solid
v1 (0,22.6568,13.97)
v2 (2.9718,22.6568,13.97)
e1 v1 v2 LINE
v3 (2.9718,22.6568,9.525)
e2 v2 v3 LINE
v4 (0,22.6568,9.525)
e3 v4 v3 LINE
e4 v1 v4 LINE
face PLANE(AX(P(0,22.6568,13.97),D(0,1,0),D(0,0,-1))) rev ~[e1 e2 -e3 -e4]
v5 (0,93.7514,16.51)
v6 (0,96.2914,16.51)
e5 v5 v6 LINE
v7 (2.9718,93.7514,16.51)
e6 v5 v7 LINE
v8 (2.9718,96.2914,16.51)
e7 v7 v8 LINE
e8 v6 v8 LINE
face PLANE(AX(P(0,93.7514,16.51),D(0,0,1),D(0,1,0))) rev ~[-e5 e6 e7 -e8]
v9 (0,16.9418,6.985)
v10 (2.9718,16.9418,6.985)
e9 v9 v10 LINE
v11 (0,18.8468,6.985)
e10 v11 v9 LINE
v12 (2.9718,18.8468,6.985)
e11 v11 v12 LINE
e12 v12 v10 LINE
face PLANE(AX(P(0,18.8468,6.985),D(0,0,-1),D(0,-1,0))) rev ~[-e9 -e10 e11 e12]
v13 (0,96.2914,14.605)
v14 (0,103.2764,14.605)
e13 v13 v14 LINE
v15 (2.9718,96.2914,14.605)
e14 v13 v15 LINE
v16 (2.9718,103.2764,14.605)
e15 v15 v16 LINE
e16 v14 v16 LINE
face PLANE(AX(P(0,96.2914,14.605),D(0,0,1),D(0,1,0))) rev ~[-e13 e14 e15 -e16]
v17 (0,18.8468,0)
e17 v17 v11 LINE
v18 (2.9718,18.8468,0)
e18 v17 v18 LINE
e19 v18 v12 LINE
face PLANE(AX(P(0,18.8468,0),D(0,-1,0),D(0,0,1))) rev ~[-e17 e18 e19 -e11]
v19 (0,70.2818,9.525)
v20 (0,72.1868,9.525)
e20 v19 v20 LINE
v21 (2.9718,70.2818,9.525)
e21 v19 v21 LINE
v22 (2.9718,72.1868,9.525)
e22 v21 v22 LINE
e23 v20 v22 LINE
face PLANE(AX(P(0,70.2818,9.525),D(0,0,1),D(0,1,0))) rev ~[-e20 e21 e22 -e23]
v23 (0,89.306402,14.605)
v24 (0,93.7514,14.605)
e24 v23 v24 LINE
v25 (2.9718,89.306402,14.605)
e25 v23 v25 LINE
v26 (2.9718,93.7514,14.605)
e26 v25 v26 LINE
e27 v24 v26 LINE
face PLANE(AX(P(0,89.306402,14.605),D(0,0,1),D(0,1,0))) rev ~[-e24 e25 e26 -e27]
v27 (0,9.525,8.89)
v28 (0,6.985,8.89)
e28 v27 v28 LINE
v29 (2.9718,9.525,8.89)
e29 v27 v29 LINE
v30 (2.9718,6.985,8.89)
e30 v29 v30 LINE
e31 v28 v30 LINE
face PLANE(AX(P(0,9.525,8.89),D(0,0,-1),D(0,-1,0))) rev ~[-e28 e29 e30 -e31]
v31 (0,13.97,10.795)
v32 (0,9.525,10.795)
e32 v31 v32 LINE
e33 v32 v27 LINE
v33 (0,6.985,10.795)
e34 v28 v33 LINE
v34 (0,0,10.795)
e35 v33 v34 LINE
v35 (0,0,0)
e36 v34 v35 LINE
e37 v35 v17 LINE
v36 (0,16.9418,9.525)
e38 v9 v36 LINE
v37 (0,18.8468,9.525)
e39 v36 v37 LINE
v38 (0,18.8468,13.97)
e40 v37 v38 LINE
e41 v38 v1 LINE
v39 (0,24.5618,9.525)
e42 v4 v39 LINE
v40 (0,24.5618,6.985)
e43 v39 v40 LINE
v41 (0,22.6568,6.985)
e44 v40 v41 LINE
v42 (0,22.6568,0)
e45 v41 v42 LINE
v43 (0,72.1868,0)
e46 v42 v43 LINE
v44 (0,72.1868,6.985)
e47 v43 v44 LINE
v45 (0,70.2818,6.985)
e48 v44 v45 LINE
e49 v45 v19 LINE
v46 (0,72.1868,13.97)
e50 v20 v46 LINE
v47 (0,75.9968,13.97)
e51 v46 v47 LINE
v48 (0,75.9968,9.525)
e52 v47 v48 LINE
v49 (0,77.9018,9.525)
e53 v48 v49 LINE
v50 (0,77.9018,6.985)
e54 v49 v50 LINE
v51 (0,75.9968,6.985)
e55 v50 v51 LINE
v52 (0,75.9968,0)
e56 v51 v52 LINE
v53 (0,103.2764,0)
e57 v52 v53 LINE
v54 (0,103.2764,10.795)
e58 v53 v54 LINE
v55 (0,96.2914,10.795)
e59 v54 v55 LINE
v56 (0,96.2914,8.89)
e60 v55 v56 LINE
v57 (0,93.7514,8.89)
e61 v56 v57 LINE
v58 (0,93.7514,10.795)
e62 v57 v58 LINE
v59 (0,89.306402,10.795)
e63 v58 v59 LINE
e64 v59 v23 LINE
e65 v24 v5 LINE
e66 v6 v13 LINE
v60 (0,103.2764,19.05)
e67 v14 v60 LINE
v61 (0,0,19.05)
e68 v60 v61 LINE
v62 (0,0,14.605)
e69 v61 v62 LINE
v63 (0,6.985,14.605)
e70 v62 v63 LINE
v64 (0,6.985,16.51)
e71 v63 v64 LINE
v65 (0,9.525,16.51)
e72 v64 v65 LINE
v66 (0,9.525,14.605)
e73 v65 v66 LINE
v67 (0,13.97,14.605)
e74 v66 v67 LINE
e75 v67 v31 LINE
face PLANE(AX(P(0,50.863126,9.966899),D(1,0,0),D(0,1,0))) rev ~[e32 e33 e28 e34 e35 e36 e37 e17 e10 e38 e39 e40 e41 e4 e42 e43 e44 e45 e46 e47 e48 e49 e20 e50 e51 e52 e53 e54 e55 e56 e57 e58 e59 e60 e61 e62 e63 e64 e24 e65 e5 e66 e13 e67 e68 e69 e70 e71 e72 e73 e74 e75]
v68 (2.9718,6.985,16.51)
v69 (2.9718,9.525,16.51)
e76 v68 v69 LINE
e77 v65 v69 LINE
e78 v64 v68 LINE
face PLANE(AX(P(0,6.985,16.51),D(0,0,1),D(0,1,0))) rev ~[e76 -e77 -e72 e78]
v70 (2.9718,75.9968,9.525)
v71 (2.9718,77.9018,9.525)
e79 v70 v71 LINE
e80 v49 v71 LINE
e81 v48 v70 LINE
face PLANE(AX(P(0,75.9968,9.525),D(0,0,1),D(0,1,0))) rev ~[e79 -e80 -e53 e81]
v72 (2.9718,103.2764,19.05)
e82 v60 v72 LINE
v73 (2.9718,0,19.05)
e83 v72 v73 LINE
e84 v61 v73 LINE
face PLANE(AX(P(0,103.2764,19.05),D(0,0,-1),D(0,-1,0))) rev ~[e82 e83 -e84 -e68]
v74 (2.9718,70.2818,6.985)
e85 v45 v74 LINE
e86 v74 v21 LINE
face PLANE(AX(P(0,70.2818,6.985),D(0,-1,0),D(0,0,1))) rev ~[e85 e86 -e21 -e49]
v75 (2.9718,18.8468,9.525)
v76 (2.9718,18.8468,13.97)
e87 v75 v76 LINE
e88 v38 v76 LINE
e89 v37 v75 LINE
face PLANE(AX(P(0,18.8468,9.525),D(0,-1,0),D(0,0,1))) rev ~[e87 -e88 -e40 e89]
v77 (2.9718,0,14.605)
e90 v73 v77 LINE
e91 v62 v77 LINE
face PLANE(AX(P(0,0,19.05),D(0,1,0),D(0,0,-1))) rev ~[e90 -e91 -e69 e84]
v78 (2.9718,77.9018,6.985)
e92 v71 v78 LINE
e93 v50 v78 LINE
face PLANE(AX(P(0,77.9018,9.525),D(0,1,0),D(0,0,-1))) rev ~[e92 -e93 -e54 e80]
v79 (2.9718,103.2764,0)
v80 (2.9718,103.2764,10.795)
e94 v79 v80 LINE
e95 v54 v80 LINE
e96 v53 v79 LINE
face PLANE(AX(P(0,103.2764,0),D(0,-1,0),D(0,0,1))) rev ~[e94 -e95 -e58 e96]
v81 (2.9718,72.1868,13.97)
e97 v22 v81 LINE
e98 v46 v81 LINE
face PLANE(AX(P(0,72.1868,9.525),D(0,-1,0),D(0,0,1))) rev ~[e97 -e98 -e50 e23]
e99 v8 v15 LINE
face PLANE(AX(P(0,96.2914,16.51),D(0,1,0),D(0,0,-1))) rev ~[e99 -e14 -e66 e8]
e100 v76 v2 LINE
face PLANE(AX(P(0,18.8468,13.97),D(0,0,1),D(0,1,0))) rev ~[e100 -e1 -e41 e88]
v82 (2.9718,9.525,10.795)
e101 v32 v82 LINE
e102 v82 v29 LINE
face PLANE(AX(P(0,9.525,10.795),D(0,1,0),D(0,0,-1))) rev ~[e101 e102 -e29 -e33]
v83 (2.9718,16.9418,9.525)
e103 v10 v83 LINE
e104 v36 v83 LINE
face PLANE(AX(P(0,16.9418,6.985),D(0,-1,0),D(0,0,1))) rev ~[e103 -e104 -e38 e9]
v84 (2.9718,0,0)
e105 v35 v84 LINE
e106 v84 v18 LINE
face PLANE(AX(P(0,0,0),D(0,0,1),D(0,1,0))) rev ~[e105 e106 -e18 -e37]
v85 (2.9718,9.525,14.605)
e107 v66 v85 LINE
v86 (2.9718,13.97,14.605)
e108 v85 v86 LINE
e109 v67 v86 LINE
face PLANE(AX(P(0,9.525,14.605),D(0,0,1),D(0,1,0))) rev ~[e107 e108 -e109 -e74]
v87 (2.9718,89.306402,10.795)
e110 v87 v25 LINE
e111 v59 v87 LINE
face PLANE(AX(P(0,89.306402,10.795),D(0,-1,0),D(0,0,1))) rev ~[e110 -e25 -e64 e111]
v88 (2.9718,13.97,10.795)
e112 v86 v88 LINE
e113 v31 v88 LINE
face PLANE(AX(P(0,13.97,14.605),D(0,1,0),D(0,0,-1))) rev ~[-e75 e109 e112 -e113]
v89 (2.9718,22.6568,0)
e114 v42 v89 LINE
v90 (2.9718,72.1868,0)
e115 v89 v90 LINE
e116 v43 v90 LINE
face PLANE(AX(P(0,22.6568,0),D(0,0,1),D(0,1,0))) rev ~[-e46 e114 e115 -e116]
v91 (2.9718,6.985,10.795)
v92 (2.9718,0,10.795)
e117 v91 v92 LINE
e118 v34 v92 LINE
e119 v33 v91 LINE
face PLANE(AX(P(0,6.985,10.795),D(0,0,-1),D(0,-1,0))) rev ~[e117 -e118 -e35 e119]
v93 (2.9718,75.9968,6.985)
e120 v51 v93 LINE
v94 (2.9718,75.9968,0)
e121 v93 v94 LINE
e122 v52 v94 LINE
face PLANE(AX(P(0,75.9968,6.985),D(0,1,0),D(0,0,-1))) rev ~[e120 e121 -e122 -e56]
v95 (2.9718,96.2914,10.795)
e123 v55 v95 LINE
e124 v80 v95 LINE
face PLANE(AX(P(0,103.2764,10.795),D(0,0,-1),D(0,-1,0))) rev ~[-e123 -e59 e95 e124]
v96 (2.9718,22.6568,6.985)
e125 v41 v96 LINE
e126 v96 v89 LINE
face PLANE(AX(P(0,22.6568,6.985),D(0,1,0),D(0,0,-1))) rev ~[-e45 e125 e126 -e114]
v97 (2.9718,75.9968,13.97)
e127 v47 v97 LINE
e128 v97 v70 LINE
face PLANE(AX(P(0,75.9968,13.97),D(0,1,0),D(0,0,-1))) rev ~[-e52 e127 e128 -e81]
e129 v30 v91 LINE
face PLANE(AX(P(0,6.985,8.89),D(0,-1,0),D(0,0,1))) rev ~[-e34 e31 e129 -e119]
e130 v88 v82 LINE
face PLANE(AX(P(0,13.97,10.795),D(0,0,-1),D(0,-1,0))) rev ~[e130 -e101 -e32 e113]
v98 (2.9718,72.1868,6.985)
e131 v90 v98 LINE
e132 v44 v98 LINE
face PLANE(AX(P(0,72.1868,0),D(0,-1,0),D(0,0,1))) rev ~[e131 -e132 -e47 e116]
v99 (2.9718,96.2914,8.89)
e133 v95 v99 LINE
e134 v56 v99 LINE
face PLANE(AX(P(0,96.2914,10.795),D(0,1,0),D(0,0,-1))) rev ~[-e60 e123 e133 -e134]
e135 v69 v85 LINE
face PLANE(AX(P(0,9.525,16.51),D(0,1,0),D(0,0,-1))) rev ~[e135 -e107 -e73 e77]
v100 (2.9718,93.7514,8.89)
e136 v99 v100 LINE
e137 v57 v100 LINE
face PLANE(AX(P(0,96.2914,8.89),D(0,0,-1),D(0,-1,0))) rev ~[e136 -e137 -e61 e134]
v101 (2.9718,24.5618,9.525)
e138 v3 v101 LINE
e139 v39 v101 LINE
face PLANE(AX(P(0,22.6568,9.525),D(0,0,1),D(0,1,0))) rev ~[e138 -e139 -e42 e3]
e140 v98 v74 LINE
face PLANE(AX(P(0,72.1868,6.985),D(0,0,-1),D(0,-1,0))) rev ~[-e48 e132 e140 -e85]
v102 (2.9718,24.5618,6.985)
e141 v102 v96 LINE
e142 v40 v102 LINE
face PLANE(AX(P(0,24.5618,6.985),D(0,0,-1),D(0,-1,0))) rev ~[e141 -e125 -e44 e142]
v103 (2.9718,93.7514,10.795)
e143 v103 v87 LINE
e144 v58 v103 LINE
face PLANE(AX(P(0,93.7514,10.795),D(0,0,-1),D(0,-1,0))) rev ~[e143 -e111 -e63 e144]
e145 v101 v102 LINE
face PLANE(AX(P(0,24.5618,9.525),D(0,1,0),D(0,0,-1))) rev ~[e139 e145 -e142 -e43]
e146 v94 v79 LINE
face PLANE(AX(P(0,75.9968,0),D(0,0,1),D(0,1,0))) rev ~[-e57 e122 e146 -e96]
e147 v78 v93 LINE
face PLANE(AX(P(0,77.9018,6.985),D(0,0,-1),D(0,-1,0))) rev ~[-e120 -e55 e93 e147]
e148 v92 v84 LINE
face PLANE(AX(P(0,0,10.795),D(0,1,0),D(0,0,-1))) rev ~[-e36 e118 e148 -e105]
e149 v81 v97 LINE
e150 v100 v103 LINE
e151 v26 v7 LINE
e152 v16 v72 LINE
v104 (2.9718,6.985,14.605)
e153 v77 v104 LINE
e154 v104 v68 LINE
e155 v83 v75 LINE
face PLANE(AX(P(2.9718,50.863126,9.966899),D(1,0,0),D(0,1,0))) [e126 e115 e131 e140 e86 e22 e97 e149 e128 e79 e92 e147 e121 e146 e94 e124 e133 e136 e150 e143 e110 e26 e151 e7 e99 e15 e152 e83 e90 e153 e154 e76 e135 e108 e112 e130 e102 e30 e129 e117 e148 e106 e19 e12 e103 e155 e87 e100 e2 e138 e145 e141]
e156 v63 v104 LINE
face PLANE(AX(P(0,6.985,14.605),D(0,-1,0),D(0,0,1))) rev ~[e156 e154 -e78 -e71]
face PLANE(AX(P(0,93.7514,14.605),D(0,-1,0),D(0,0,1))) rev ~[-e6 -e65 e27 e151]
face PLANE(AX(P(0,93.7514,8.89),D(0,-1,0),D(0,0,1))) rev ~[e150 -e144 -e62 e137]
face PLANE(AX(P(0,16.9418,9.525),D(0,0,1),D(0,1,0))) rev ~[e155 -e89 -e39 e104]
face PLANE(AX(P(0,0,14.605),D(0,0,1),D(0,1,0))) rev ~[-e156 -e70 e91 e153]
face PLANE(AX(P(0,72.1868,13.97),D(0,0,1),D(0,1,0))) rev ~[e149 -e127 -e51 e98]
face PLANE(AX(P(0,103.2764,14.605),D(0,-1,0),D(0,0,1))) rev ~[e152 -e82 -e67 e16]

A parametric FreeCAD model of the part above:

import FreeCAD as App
import Part
import Sketcher
from FreeCAD import Vector
Q = App.Units.Quantity


def add_polygon(sketch, points):
    """Adds a closed chain of lines whose ends are joined by coincident constraints."""
    first, n = sketch.GeometryCount, len(points)
    for a, b in zip(points, points[1:] + points[:1]):
        sketch.addGeometry(Part.LineSegment(App.Vector(*a, 0), App.Vector(*b, 0)), False)
    for i in range(n):
        sketch.addConstraint(Sketcher.Constraint("Coincident", first + i, 2, first + (i + 1) % n, 1))

doc = App.newDocument("Part")
params = doc.addObject("Spreadsheet::Sheet", "Params")
for row, (alias, value) in enumerate([
    ("sketch1_width", "0.1 in"),
    ("sketch1_width2", "0.15 in"),
    ("sketch1_width3", "1.95 in"),
    ("sketch1_width4", "0.742 in"),
    ("sketch1_width5", "1.074 in"),
    ("pad1_length", "0.117 in"),
], start=1):
    params.set(f"A{row}", alias)
    params.set(f"B{row}", "=" + value)
    params.setAlias(f"B{row}", alias)

body = doc.addObject("PartDesign::Body", "Body")

sketch1 = doc.addObject("Sketcher::SketchObject", "Sketch")
body.addObject(sketch1)
sketch1.AttachmentSupport = (doc.YZ_Plane, [""])
sketch1.MapMode = "FlatFace"
add_polygon(sketch1, [(0, 10.8), (0, 0), (18.8, 0), (18.8, 7), (16.9, 7), (16.9, 9.5), (18.8, 9.5), (18.8, 14), (22.7, 14), (22.7, 9.5), (24.6, 9.5), (24.6, 7), (22.7, 7), (22.7, 0), (72.2, 0), (72.2, 7), (70.3, 7), (70.3, 9.5), (72.2, 9.5), (72.2, 14), (76, 14), (76, 9.5), (77.9, 9.5), (77.9, 7), (76, 7), (76, 0), (103.3, 0), (103.3, 10.8), (96.3, 10.8), (96.3, 8.9), (93.8, 8.9), (93.8, 10.8), (89.3, 10.8), (89.3, 14.6), (93.8, 14.6), (93.8, 16.5), (96.3, 16.5), (96.3, 14.6), (103.3, 14.6), (103.3, 19.1), (0, 19.1), (0, 14.6), (7, 14.6), (7, 16.5), (9.5, 16.5), (9.5, 14.6), (14, 14.6), (14, 10.8), (9.5, 10.8), (9.5, 8.9), (7, 8.9), (7, 10.8)])
sketch1.addConstraint([
    Sketcher.Constraint("Vertical", 0),
    Sketcher.Constraint("Horizontal", 1),
    Sketcher.Constraint("Vertical", 2),
    Sketcher.Constraint("Horizontal", 3),
    Sketcher.Constraint("Vertical", 4),
    Sketcher.Constraint("Horizontal", 5),
    Sketcher.Constraint("Vertical", 6),
    Sketcher.Constraint("Horizontal", 7),
    Sketcher.Constraint("Vertical", 8),
    Sketcher.Constraint("Horizontal", 9),
    Sketcher.Constraint("Vertical", 10),
    Sketcher.Constraint("Horizontal", 11),
    Sketcher.Constraint("Vertical", 12),
    Sketcher.Constraint("Horizontal", 13),
    Sketcher.Constraint("Vertical", 14),
    Sketcher.Constraint("Horizontal", 15),
    Sketcher.Constraint("Vertical", 16),
    Sketcher.Constraint("Horizontal", 17),
    Sketcher.Constraint("Vertical", 18),
    Sketcher.Constraint("Horizontal", 19),
    Sketcher.Constraint("Vertical", 20),
    Sketcher.Constraint("Horizontal", 21),
    Sketcher.Constraint("Vertical", 22),
    Sketcher.Constraint("Horizontal", 23),
    Sketcher.Constraint("Vertical", 24),
    Sketcher.Constraint("Horizontal", 25),
    Sketcher.Constraint("Vertical", 26),
    Sketcher.Constraint("Horizontal", 27),
    Sketcher.Constraint("Vertical", 28),
    Sketcher.Constraint("Horizontal", 29),
    Sketcher.Constraint("Vertical", 30),
    Sketcher.Constraint("Horizontal", 31),
    Sketcher.Constraint("Vertical", 32),
    Sketcher.Constraint("Horizontal", 33),
    Sketcher.Constraint("Vertical", 34),
    Sketcher.Constraint("Horizontal", 35),
    Sketcher.Constraint("Vertical", 36),
    Sketcher.Constraint("Horizontal", 37),
    Sketcher.Constraint("Vertical", 38),
    Sketcher.Constraint("Horizontal", 39),
    Sketcher.Constraint("Vertical", 40),
    Sketcher.Constraint("Horizontal", 41),
    Sketcher.Constraint("Vertical", 42),
    Sketcher.Constraint("Horizontal", 43),
    Sketcher.Constraint("Vertical", 44),
    Sketcher.Constraint("Horizontal", 45),
    Sketcher.Constraint("Vertical", 46),
    Sketcher.Constraint("Horizontal", 47),
    Sketcher.Constraint("Vertical", 48),
    Sketcher.Constraint("Horizontal", 49),
    Sketcher.Constraint("Vertical", 50),
    Sketcher.Constraint("Horizontal", 51),
    Sketcher.Constraint("Coincident", 0, 2, -1, 1),
    Sketcher.Constraint("PointOnObject", 12, 2, -1),
    Sketcher.Constraint("PointOnObject", 24, 2, -1),
    Sketcher.Constraint("PointOnObject", 39, 2, -2),
    Sketcher.Constraint("Horizontal", 5, 2, 8, 2),
    Sketcher.Constraint("Horizontal", 3, 2, 10, 2),
    Sketcher.Constraint("Horizontal", 11, 2, 14, 2),
    Sketcher.Constraint("Horizontal", 9, 2, 16, 2),
    Sketcher.Constraint("Horizontal", 7, 2, 18, 2),
    Sketcher.Constraint("Horizontal", 17, 2, 20, 2),
    Sketcher.Constraint("Horizontal", 15, 2, 22, 2),
    Sketcher.Constraint("Horizontal", 27, 2, 30, 2),
    Sketcher.Constraint("Horizontal", 33, 2, 36, 2),
    Sketcher.Constraint("Horizontal", 37, 2, 40, 2),
    Sketcher.Constraint("Horizontal", 35, 2, 42, 2),
    Sketcher.Constraint("Horizontal", 41, 2, 44, 2),
    Sketcher.Constraint("Horizontal", 31, 2, 46, 2),
    Sketcher.Constraint("Horizontal", 29, 2, 48, 2),
    Sketcher.Constraint("Horizontal", 47, 2, 50, 2),
    Sketcher.Constraint("Vertical", 2, 2, 5, 2),
    Sketcher.Constraint("Vertical", 8, 2, 11, 2),
    Sketcher.Constraint("Vertical", 14, 2, 17, 2),
    Sketcher.Constraint("Vertical", 20, 2, 23, 2),
    Sketcher.Constraint("Vertical", 30, 2, 33, 2),
    Sketcher.Constraint("Vertical", 28, 2, 35, 2),
    Sketcher.Constraint("Vertical", 26, 2, 37, 2),
    Sketcher.Constraint("Vertical", 44, 2, 47, 2),
    Sketcher.Constraint("Vertical", 42, 2, 49, 2),
    Sketcher.Constraint("Equal", 5, 9),
    Sketcher.Constraint("Equal", 11, 15),
    Sketcher.Constraint("Equal", 7, 19),
    Sketcher.Constraint("Equal", 17, 21),
    Sketcher.Constraint("Equal", 37, 41),
    Sketcher.Constraint("Equal", 35, 43),
    Sketcher.Constraint("Equal", 51, 2),
    Sketcher.Constraint("Equal", 49, 4),
    Sketcher.Constraint("Equal", 47, 6),
    Sketcher.Constraint("Equal", 23, 28),
    Sketcher.Constraint("Equal", 19, 32),
    Sketcher.Constraint("Equal", 30, 34),
    Sketcher.Constraint("Equal", 20, 38),
    Sketcher.Constraint("DistanceX", 29, 2, 29, 1, Q("0.1 in")),
    Sketcher.Constraint("DistanceX", 7, 1, 7, 2, Q("0.15 in")),
    Sketcher.Constraint("DistanceX", 13, 1, 13, 2, Q("1.95 in")),
    Sketcher.Constraint("DistanceX", 10, 2, 15, 2, Q("1.8 in")),
    Sketcher.Constraint("DistanceY", 35, 2, 38, 2, Q("0.1 in")),
    Sketcher.Constraint("DistanceY", 6, 2, 39, 2, Q("0.2 in")),
    Sketcher.Constraint("DistanceX", 1, 1, 1, 2, Q("0.742 in")),
    Sketcher.Constraint("DistanceX", 25, 1, 25, 2, Q("1.074 in")),
    Sketcher.Constraint("DistanceX", 27, 2, 27, 1, Q("0.275 in")),
    Sketcher.Constraint("DistanceX", 31, 2, 31, 1, Q("0.1749999 in")),
])
sketch1.setExpression("Constraints[145]", "Params.sketch1_width")
sketch1.setExpression("Constraints[146]", "Params.sketch1_width2")
sketch1.setExpression("Constraints[147]", "Params.sketch1_width3")
sketch1.setExpression("Constraints[151]", "Params.sketch1_width4")
sketch1.setExpression("Constraints[152]", "Params.sketch1_width5")
pad1 = doc.addObject("PartDesign::Pad", "Pad")
body.addObject(pad1)
pad1.Profile = sketch1
pad1.setExpression("Length", "Params.pad1_length")

doc.recompute()
